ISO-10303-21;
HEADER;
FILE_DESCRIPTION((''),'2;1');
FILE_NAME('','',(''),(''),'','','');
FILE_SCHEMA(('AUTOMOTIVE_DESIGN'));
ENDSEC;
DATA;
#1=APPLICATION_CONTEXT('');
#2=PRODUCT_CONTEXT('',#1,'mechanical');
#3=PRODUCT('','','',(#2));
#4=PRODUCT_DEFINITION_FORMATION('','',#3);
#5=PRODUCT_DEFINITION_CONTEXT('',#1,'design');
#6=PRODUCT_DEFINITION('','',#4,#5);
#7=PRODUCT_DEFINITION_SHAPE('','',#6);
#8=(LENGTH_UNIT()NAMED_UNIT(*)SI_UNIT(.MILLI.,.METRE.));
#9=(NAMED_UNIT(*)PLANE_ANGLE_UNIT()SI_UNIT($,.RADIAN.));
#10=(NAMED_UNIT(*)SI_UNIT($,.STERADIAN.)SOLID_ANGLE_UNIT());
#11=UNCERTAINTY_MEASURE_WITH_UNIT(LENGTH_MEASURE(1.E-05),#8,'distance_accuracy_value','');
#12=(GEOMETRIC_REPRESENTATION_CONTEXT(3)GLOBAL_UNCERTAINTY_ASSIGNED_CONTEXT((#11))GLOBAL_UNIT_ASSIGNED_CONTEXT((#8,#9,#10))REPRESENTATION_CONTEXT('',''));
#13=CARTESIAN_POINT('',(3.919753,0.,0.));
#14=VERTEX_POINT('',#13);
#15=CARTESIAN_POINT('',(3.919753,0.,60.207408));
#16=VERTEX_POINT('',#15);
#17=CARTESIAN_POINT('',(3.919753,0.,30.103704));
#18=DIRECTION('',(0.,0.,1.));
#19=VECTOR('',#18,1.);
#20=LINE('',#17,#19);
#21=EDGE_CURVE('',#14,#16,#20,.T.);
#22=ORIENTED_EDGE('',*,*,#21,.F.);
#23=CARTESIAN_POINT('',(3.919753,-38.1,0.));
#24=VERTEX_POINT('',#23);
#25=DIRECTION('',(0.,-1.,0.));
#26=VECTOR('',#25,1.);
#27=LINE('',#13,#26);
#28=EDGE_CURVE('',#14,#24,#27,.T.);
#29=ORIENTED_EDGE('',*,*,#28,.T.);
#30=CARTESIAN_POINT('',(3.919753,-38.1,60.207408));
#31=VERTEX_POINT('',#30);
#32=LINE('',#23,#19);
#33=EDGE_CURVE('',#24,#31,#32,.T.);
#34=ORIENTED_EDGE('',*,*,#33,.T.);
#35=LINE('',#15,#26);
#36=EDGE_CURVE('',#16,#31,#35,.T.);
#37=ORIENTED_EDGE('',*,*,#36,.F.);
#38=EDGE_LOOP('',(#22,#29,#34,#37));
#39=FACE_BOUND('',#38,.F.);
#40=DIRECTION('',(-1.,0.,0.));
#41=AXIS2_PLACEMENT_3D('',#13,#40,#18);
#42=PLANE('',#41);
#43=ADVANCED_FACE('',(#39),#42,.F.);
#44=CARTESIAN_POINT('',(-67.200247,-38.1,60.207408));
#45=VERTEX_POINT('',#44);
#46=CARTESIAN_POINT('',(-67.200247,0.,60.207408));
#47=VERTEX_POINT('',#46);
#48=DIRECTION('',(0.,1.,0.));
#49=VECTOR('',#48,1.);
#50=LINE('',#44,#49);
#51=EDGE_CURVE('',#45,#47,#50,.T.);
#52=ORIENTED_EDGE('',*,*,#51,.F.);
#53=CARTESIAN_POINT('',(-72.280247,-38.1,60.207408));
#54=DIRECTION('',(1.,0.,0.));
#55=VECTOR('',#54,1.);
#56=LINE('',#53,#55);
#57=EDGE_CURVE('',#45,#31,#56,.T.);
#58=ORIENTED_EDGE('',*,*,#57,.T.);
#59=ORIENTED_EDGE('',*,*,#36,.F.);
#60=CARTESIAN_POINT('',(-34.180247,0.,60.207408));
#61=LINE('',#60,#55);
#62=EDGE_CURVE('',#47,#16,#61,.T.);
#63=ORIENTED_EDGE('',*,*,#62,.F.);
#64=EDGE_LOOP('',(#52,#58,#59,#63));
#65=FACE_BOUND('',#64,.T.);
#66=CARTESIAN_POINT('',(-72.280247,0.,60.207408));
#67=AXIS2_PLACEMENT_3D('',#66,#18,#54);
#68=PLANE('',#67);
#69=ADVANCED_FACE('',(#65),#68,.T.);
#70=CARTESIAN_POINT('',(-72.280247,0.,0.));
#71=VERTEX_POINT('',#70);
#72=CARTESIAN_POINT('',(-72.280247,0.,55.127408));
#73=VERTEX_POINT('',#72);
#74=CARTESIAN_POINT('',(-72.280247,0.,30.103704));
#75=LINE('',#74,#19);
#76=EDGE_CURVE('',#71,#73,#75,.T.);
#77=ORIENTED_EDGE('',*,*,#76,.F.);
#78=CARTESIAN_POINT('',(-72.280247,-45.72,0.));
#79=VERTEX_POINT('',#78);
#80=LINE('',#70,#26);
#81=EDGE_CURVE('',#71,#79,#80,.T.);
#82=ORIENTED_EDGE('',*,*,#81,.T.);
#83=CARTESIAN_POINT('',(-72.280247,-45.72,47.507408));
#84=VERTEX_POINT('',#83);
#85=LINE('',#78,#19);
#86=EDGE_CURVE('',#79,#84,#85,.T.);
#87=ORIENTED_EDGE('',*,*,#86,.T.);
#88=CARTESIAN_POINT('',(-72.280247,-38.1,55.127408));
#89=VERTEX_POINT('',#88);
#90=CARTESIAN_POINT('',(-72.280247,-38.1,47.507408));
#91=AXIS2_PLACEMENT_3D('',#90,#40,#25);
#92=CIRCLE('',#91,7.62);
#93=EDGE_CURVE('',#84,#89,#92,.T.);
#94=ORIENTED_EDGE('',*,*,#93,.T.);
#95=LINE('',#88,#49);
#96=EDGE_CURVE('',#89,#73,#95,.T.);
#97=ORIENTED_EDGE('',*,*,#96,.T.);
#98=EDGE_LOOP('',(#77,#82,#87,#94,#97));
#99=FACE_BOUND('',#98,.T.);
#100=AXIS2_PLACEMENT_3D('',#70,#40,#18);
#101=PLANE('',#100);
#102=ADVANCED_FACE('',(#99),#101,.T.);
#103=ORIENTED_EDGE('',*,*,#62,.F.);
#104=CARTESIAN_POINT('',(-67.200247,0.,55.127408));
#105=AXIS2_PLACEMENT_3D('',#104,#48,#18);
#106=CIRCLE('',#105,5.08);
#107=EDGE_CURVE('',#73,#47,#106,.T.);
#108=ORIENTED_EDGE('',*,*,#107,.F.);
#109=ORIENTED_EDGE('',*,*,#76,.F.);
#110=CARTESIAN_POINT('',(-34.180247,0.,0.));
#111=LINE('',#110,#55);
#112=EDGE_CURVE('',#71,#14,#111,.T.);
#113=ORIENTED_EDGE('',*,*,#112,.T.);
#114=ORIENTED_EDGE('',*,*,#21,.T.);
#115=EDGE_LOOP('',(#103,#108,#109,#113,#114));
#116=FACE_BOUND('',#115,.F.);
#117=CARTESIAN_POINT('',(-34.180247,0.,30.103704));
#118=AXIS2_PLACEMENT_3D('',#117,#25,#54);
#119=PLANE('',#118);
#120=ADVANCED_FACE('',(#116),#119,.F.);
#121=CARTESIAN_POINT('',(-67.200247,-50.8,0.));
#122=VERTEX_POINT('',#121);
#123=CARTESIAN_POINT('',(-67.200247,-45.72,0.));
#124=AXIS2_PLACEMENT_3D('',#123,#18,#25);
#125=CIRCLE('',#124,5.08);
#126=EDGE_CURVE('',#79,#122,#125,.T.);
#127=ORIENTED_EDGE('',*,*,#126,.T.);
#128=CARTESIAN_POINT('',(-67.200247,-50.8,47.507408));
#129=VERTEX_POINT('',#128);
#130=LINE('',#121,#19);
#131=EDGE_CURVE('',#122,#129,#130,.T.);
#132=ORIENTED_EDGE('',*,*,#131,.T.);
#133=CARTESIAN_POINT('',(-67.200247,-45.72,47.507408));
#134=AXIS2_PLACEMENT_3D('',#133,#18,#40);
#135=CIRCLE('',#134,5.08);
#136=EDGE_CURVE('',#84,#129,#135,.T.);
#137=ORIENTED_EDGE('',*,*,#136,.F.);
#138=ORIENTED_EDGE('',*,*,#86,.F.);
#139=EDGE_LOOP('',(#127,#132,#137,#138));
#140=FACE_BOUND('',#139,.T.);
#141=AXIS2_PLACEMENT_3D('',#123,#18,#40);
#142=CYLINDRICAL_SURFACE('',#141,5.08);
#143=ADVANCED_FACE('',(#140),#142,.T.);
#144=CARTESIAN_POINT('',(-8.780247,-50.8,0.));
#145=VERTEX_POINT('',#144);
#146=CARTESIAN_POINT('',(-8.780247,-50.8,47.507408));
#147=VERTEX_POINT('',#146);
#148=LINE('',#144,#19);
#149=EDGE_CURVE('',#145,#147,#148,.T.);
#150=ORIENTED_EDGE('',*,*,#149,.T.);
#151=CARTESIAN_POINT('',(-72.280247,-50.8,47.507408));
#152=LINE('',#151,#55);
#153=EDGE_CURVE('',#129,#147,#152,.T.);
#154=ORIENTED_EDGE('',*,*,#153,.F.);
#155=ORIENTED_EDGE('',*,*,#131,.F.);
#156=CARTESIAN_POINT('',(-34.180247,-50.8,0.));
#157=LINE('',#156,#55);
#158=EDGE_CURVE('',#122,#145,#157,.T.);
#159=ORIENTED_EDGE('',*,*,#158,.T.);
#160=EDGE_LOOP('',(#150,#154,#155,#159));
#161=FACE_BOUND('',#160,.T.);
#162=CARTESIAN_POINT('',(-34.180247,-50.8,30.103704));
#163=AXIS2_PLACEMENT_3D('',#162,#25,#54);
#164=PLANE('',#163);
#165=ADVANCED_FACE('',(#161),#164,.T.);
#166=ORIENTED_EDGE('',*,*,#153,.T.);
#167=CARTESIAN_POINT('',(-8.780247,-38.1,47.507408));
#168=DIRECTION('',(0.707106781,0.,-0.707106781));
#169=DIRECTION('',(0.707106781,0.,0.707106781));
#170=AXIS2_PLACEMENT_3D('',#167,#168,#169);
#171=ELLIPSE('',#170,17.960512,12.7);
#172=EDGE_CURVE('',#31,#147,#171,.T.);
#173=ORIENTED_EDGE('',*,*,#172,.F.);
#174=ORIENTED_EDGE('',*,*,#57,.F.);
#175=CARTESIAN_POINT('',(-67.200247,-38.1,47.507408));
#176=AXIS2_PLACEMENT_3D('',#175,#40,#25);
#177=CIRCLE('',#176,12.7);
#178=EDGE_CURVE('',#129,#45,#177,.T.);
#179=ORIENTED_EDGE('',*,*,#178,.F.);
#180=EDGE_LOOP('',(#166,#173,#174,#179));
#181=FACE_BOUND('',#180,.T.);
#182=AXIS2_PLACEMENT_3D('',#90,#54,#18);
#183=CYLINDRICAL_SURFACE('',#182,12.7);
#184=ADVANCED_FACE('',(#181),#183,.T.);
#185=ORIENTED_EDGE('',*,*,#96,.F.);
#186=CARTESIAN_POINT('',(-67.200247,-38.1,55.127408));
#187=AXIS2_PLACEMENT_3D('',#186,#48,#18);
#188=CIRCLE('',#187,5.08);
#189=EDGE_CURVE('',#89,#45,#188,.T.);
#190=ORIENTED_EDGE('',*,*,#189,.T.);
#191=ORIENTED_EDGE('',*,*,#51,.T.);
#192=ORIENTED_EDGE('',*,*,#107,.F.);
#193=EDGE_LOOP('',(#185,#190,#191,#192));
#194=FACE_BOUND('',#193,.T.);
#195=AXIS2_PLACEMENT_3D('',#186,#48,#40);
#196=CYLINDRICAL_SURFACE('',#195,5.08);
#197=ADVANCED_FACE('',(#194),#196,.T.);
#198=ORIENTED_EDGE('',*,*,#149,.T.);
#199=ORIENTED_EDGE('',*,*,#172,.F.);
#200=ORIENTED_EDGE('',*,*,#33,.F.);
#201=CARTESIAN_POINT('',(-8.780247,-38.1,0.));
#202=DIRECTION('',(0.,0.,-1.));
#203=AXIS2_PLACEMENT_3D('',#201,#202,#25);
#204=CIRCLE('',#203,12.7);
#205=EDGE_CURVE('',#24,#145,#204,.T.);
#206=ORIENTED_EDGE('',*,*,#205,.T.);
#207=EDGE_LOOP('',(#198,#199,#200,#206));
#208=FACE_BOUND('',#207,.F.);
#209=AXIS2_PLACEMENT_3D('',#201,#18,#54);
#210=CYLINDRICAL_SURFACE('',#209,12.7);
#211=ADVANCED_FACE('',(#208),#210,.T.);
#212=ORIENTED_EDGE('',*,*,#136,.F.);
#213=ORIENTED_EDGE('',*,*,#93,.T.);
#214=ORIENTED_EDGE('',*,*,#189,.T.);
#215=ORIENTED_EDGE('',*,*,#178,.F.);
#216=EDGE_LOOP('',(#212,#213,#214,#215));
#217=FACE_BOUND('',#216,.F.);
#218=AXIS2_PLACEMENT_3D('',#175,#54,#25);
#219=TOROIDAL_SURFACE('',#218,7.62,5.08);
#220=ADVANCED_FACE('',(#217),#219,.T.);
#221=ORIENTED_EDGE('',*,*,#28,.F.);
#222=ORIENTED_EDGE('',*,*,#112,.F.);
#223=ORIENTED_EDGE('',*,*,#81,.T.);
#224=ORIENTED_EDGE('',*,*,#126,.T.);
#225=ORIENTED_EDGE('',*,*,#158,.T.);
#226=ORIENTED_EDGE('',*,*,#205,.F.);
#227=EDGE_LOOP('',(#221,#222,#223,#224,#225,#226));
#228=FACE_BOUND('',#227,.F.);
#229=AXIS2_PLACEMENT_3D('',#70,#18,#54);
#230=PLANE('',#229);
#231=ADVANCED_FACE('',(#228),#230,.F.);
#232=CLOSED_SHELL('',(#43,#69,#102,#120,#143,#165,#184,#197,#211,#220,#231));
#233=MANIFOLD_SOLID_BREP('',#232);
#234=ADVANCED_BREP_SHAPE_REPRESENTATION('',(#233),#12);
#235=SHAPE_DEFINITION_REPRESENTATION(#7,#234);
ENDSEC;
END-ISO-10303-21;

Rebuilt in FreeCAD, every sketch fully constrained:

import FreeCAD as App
import Part
import Sketcher

V = App.Vector
Q = App.Units.Quantity


def edges_at(feature, points):
    """Names of the edges that pass closest to the given points."""
    edges = feature.Shape.Edges
    near = lambda p: min(range(len(edges)), key=lambda i: edges[i].distToShape(Part.Vertex(*p))[0])
    return sorted({f"Edge{near(p) + 1}" for p in points})


def add_polygon(sketch, points):
    """Adds a closed chain of lines whose ends are joined by coincident constraints."""
    first, n = sketch.GeometryCount, len(points)
    for a, b in zip(points, points[1:] + points[:1]):
        sketch.addGeometry(Part.LineSegment(App.Vector(*a, 0), App.Vector(*b, 0)), False)
    for i in range(n):
        sketch.addConstraint(Sketcher.Constraint("Coincident", first + i, 2, first + (i + 1) % n, 1))

doc = App.newDocument("Part")
body = doc.addObject("PartDesign::Body", "Body")

# Sketch on XZ plane
sketch1 = doc.addObject("Sketcher::SketchObject", "Sketch")
body.addObject(sketch1)
sketch1.AttachmentSupport = (doc.XZ_Plane, [""])
sketch1.MapMode = "FlatFace"
add_polygon(sketch1, [(-72, 60), (-72, 0), (4, 0), (4, 60)])  # lines 0-3
sketch1.addConstraint(Sketcher.Constraint("Vertical", 0))
sketch1.addConstraint(Sketcher.Constraint("Horizontal", 1))
sketch1.addConstraint(Sketcher.Constraint("Vertical", 2))
sketch1.addConstraint(Sketcher.Constraint("Horizontal", 3))
sketch1.addConstraint(Sketcher.Constraint("PointOnObject", 0, 2, -1))
sketch1.addConstraint(Sketcher.Constraint("DistanceX", 1, 1, 1, 2, Q("3 in")))
sketch1.addConstraint(Sketcher.Constraint("DistanceY", 0, 2, 0, 1, 60.207408))
sketch1.addConstraint(Sketcher.Constraint("DistanceX", 0, 2, -1, 1, 72.280247))
pad1 = doc.addObject("PartDesign::Pad", "Pad")
body.addObject(pad1)
pad1.Profile = sketch1
pad1.Length = Q("2 in")
doc.recompute()

fillet = doc.addObject("PartDesign::Fillet", "Fillet")
body.addObject(fillet)
fillet.Base = (pad1, edges_at(pad1, [(-34.18, -50.8, 60.207), (3.92, -50.8, 30.104)]))
fillet.Radius = Q("0.5 in")
doc.recompute()

fillet2 = doc.addObject("PartDesign::Fillet", "Fillet001")
body.addObject(fillet2)
fillet2.Base = (fillet, edges_at(fillet, [(-72.28, -50.8, 23.754)]))
fillet2.Radius = Q("0.2 in")

doc.recompute()
